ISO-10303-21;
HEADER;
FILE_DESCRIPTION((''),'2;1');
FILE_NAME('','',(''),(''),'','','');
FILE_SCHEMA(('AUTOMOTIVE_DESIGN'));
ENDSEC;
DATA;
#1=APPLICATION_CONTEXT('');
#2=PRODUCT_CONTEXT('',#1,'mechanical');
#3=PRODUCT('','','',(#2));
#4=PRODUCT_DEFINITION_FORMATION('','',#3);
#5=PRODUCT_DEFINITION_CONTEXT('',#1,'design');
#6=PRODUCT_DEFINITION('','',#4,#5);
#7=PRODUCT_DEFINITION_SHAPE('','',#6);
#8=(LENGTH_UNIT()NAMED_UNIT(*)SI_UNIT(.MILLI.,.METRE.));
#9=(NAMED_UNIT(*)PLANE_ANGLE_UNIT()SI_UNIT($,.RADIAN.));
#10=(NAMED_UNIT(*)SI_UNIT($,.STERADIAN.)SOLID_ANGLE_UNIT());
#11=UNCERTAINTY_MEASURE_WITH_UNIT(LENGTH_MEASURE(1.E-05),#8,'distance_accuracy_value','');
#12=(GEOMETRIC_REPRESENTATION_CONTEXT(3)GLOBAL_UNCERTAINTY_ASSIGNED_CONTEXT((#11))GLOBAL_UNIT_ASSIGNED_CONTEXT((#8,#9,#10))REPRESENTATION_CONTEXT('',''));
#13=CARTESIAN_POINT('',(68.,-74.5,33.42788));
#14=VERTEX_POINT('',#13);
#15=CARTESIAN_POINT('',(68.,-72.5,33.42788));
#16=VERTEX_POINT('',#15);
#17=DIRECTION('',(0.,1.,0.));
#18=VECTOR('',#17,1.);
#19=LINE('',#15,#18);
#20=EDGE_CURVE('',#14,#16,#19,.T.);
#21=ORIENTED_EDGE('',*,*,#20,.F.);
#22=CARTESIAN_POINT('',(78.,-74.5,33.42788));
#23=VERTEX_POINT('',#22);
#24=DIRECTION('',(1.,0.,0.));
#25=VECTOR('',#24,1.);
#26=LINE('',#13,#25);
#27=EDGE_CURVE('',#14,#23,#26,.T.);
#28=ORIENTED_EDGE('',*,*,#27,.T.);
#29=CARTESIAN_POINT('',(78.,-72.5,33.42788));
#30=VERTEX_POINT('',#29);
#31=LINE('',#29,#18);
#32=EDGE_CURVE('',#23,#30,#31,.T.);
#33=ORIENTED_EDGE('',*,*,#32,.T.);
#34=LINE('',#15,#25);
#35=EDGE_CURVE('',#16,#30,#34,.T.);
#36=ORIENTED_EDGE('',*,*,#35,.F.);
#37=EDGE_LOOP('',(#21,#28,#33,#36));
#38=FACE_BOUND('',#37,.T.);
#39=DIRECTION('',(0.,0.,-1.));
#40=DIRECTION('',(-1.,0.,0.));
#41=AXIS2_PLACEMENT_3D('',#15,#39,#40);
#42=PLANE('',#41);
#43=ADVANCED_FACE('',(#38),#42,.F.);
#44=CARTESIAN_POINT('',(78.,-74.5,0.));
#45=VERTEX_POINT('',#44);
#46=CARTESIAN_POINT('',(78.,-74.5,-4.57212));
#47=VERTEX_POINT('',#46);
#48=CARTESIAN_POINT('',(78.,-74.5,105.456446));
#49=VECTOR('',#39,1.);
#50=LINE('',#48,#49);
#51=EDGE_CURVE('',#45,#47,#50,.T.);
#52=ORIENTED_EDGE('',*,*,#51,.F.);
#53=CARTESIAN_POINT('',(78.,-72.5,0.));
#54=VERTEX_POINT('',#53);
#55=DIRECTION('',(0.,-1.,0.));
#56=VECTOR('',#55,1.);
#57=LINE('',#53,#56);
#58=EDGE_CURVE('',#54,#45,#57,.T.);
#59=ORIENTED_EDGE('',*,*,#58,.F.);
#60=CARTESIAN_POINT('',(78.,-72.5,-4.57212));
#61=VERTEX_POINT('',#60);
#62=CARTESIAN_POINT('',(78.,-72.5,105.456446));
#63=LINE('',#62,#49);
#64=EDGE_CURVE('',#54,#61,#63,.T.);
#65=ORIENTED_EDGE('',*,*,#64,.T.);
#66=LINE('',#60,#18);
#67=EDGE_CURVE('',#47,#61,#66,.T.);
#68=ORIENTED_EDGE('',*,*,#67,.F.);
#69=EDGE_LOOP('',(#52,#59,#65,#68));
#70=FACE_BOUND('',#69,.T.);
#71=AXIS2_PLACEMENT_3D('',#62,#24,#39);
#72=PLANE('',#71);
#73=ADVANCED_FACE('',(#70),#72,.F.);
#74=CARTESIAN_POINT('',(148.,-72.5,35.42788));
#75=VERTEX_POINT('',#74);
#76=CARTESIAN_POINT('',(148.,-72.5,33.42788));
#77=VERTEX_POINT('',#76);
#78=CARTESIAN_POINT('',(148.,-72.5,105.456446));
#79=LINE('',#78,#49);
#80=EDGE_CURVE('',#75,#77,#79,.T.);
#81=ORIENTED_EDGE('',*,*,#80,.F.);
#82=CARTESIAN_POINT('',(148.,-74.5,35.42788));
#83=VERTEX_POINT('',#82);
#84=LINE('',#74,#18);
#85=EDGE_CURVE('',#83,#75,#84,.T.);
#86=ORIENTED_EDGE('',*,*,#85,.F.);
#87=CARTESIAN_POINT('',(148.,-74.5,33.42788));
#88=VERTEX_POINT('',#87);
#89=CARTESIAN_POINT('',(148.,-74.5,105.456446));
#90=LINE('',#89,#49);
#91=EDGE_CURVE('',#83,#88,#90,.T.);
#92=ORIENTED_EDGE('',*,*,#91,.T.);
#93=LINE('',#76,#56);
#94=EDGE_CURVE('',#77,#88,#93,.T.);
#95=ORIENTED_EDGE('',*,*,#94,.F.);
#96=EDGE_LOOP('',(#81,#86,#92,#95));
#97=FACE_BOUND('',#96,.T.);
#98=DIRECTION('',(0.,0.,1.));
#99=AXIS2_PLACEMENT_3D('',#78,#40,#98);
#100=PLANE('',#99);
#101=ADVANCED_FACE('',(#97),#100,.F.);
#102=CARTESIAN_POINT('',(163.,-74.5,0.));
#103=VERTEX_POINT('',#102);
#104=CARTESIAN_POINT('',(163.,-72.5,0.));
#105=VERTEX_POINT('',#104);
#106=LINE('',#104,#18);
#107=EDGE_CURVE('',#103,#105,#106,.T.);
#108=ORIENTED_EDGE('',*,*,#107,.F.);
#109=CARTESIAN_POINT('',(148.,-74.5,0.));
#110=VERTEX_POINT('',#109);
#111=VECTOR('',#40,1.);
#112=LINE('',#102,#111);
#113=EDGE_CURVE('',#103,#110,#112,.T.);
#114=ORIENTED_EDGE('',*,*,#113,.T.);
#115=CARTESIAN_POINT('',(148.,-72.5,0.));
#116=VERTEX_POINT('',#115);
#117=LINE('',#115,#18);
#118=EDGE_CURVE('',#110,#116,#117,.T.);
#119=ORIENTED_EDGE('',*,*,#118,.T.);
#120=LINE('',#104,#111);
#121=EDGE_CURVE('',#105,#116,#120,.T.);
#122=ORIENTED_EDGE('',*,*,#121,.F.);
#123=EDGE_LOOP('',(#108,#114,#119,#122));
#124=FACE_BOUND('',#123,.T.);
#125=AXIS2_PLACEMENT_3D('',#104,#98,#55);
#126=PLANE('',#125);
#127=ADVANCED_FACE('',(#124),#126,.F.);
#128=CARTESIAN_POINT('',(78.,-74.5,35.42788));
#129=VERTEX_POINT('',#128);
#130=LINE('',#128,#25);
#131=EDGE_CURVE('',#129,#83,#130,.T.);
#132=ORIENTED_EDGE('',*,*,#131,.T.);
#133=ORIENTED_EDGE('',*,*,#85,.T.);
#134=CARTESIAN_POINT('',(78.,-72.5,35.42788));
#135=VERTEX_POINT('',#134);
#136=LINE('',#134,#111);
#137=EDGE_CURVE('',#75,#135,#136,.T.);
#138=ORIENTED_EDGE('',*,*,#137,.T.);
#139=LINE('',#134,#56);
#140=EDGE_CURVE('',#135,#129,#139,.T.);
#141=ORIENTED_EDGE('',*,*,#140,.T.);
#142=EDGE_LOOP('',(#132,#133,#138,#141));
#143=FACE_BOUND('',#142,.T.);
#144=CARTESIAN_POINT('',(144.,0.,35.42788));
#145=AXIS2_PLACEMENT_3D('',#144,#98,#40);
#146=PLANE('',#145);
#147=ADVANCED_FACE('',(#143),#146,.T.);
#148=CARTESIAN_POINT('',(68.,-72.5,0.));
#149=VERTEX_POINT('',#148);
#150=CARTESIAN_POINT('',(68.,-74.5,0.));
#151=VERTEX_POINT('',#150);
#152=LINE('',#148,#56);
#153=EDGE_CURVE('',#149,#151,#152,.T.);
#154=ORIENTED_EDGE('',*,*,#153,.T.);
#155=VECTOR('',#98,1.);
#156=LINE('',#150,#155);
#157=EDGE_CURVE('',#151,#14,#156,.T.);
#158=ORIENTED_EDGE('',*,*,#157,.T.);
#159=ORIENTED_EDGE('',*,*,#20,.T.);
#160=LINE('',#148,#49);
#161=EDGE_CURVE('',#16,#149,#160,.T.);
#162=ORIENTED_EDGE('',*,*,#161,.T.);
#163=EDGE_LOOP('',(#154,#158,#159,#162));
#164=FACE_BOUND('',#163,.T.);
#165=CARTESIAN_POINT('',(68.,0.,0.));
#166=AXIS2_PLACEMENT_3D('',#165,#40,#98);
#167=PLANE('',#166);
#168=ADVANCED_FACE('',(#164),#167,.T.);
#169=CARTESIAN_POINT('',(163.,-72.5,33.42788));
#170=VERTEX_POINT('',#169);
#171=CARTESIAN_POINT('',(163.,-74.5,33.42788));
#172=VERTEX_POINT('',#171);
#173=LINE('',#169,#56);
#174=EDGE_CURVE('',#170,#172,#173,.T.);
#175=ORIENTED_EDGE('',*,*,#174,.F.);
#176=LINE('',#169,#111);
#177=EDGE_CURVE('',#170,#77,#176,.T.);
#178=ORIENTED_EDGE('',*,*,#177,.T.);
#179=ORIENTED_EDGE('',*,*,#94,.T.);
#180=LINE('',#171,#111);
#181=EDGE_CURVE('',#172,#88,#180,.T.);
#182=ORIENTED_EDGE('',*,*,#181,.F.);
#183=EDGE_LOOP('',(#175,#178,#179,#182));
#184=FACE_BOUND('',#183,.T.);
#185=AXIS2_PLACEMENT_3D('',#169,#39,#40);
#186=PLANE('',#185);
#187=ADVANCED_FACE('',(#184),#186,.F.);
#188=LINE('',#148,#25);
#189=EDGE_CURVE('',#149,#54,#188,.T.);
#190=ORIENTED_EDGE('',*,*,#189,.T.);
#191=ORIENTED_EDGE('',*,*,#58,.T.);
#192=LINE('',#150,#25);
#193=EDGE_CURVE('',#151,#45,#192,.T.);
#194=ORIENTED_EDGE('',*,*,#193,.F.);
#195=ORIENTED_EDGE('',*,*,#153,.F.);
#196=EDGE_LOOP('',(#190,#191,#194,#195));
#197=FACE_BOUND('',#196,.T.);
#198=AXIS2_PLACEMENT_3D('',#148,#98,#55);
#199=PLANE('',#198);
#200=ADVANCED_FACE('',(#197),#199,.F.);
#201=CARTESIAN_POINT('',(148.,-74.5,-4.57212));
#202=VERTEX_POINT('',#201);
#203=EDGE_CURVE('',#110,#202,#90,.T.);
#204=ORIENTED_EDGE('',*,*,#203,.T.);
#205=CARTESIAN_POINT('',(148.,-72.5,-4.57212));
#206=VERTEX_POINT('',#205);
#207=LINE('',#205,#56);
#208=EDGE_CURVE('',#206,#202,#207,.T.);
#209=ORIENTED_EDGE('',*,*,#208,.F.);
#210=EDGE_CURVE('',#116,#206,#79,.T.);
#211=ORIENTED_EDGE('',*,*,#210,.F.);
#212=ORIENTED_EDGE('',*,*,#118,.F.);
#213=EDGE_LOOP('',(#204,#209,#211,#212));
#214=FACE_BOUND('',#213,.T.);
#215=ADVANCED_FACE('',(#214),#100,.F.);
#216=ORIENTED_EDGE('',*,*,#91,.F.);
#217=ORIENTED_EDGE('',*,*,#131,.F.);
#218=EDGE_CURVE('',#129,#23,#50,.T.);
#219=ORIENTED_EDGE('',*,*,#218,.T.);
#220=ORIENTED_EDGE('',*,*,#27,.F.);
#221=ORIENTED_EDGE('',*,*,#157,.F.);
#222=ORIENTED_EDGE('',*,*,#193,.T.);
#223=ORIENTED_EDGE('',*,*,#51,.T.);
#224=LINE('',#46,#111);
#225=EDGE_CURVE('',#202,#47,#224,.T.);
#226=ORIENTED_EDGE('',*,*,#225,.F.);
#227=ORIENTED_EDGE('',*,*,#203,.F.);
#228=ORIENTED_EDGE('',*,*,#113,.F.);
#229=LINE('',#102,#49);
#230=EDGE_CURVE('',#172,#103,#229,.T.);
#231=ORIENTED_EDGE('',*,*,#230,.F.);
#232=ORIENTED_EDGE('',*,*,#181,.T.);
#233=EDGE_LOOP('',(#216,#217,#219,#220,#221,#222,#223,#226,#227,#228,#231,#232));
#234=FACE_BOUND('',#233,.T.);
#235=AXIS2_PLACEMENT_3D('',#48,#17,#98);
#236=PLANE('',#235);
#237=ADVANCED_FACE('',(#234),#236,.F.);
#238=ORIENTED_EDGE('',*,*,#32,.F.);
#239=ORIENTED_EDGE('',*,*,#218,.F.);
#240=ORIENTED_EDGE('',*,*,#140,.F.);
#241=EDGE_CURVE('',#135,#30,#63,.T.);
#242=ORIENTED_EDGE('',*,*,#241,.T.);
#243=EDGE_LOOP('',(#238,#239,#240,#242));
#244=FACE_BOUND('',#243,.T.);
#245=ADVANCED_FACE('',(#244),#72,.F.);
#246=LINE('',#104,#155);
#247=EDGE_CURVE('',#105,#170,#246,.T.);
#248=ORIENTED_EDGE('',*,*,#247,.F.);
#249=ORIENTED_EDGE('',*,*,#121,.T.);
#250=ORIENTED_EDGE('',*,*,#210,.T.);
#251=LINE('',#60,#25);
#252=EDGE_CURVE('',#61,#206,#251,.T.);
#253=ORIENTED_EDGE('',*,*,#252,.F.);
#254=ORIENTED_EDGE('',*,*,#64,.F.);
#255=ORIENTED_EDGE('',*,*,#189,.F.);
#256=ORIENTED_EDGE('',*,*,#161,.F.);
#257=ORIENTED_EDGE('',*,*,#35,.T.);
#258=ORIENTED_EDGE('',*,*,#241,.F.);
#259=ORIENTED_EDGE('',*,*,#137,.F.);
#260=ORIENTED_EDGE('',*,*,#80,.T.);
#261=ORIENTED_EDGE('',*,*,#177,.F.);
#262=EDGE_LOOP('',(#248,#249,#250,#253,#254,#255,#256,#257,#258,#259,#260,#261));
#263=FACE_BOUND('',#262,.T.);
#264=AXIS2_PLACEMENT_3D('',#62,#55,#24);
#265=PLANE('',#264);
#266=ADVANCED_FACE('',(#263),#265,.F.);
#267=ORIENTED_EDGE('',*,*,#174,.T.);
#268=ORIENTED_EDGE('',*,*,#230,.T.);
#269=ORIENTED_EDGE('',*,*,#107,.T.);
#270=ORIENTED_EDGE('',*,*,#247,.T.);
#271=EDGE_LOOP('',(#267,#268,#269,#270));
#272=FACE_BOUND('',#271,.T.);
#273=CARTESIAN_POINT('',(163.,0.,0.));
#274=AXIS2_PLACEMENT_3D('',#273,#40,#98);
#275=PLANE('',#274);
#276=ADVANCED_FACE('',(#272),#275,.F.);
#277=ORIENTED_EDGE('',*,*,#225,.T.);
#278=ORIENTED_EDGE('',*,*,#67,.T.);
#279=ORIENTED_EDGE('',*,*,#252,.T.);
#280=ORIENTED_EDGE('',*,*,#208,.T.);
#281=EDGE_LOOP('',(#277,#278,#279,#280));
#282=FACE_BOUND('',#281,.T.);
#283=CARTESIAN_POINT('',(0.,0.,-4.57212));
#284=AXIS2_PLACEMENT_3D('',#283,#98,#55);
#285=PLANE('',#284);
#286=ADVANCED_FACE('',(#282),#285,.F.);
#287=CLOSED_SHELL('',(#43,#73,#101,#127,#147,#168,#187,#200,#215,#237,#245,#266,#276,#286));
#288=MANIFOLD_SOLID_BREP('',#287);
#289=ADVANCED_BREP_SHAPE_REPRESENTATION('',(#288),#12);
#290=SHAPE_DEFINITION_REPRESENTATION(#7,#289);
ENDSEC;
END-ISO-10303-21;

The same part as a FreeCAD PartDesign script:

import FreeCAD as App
import Part
import Sketcher


def add_polygon(sketch, points):
    """Adds a closed chain of lines whose ends are joined by coincident constraints."""
    first, n = sketch.GeometryCount, len(points)
    for a, b in zip(points, points[1:] + points[:1]):
        sketch.addGeometry(Part.LineSegment(App.Vector(*a, 0), App.Vector(*b, 0)), False)
    for i in range(n):
        sketch.addConstraint(Sketcher.Constraint("Coincident", first + i, 2, first + (i + 1) % n, 1))

doc = App.newDocument("Part")
body = doc.addObject("PartDesign::Body", "Body")

# Sketch on XY plane
sketch1 = doc.addObject("Sketcher::SketchObject", "Sketch")
body.addObject(sketch1)
sketch1.AttachmentSupport = (doc.XY_Plane, [""])
sketch1.MapMode = "FlatFace"
add_polygon(sketch1, [(78, -72.5), (78, -74.5), (148, -74.5), (148, -72.5)])  # lines 0-3
sketch1.addConstraint([
    Sketcher.Constraint("Vertical", 0),
    Sketcher.Constraint("Horizontal", 1),
    Sketcher.Constraint("Vertical", 2),
    Sketcher.Constraint("Horizontal", 3),
    Sketcher.Constraint("DistanceX", 1, 1, 1, 2, 70.0),
    Sketcher.Constraint("DistanceY", 0, 2, 0, 1, 2.0),
    Sketcher.Constraint("DistanceX", -1, 1, 0, 2, 78.0),
    Sketcher.Constraint("DistanceY", 0, 2, -1, 1, 74.5),
])
pad1 = doc.addObject("PartDesign::Pad", "Pad")
body.addObject(pad1)
pad1.Profile = sketch1
pad1.Type = "TwoLengths"
pad1.Length = 35.42788
pad1.Length2 = 4.57212

# Sketch on YZ plane
sketch2 = doc.addObject("Sketcher::SketchObject", "Sketch001")
body.addObject(sketch2)
sketch2.AttachmentSupport = (doc.YZ_Plane, [""])
sketch2.MapMode = "FlatFace"
sketch2.AttachmentOffset = App.Placement(App.Vector(0, 0, 148), App.Rotation())
add_polygon(sketch2, [(-72.5, 33.4), (-74.5, 33.4), (-74.5, 0), (-72.5, 0)])  # lines 0-3
sketch2.addConstraint([
    Sketcher.Constraint("Horizontal", 0),
    Sketcher.Constraint("Vertical", 1),
    Sketcher.Constraint("Horizontal", 2),
    Sketcher.Constraint("Vertical", 3),
    Sketcher.Constraint("PointOnObject", 1, 2, -1),
    Sketcher.Constraint("DistanceX", 0, 2, 0, 1, 2.0),
    Sketcher.Constraint("DistanceX", 0, 2, -1, 1, 74.5),
    Sketcher.Constraint("DistanceY", 1, 2, 1, 1, 33.42788),
])
pad2 = doc.addObject("PartDesign::Pad", "Pad001")
body.addObject(pad2)
pad2.Profile = sketch2
pad2.Length = 15

# Sketch on YZ plane
sketch3 = doc.addObject("Sketcher::SketchObject", "Sketch002")
body.addObject(sketch3)
sketch3.AttachmentSupport = (doc.YZ_Plane, [""])
sketch3.MapMode = "FlatFace"
sketch3.AttachmentOffset = App.Placement(App.Vector(0, 0, 78), App.Rotation())
add_polygon(sketch3, [(-72.5, 0), (-74.5, 0), (-74.5, 33.4), (-72.5, 33.4)])  # lines 0-3
sketch3.addConstraint([
    Sketcher.Constraint("Horizontal", 0),
    Sketcher.Constraint("Vertical", 1),
    Sketcher.Constraint("Horizontal", 2),
    Sketcher.Constraint("Vertical", 3),
    Sketcher.Constraint("PointOnObject", 0, 2, -1),
    Sketcher.Constraint("DistanceX", 0, 2, 0, 1, 2.0),
    Sketcher.Constraint("DistanceX", 0, 2, -1, 1, 74.5),
    Sketcher.Constraint("DistanceY", 1, 1, 1, 2, 33.42788),
])
pad3 = doc.addObject("PartDesign::Pad", "Pad002")
body.addObject(pad3)
pad3.Profile = sketch3
pad3.Length = 10
pad3.Reversed = True

doc.recompute()
